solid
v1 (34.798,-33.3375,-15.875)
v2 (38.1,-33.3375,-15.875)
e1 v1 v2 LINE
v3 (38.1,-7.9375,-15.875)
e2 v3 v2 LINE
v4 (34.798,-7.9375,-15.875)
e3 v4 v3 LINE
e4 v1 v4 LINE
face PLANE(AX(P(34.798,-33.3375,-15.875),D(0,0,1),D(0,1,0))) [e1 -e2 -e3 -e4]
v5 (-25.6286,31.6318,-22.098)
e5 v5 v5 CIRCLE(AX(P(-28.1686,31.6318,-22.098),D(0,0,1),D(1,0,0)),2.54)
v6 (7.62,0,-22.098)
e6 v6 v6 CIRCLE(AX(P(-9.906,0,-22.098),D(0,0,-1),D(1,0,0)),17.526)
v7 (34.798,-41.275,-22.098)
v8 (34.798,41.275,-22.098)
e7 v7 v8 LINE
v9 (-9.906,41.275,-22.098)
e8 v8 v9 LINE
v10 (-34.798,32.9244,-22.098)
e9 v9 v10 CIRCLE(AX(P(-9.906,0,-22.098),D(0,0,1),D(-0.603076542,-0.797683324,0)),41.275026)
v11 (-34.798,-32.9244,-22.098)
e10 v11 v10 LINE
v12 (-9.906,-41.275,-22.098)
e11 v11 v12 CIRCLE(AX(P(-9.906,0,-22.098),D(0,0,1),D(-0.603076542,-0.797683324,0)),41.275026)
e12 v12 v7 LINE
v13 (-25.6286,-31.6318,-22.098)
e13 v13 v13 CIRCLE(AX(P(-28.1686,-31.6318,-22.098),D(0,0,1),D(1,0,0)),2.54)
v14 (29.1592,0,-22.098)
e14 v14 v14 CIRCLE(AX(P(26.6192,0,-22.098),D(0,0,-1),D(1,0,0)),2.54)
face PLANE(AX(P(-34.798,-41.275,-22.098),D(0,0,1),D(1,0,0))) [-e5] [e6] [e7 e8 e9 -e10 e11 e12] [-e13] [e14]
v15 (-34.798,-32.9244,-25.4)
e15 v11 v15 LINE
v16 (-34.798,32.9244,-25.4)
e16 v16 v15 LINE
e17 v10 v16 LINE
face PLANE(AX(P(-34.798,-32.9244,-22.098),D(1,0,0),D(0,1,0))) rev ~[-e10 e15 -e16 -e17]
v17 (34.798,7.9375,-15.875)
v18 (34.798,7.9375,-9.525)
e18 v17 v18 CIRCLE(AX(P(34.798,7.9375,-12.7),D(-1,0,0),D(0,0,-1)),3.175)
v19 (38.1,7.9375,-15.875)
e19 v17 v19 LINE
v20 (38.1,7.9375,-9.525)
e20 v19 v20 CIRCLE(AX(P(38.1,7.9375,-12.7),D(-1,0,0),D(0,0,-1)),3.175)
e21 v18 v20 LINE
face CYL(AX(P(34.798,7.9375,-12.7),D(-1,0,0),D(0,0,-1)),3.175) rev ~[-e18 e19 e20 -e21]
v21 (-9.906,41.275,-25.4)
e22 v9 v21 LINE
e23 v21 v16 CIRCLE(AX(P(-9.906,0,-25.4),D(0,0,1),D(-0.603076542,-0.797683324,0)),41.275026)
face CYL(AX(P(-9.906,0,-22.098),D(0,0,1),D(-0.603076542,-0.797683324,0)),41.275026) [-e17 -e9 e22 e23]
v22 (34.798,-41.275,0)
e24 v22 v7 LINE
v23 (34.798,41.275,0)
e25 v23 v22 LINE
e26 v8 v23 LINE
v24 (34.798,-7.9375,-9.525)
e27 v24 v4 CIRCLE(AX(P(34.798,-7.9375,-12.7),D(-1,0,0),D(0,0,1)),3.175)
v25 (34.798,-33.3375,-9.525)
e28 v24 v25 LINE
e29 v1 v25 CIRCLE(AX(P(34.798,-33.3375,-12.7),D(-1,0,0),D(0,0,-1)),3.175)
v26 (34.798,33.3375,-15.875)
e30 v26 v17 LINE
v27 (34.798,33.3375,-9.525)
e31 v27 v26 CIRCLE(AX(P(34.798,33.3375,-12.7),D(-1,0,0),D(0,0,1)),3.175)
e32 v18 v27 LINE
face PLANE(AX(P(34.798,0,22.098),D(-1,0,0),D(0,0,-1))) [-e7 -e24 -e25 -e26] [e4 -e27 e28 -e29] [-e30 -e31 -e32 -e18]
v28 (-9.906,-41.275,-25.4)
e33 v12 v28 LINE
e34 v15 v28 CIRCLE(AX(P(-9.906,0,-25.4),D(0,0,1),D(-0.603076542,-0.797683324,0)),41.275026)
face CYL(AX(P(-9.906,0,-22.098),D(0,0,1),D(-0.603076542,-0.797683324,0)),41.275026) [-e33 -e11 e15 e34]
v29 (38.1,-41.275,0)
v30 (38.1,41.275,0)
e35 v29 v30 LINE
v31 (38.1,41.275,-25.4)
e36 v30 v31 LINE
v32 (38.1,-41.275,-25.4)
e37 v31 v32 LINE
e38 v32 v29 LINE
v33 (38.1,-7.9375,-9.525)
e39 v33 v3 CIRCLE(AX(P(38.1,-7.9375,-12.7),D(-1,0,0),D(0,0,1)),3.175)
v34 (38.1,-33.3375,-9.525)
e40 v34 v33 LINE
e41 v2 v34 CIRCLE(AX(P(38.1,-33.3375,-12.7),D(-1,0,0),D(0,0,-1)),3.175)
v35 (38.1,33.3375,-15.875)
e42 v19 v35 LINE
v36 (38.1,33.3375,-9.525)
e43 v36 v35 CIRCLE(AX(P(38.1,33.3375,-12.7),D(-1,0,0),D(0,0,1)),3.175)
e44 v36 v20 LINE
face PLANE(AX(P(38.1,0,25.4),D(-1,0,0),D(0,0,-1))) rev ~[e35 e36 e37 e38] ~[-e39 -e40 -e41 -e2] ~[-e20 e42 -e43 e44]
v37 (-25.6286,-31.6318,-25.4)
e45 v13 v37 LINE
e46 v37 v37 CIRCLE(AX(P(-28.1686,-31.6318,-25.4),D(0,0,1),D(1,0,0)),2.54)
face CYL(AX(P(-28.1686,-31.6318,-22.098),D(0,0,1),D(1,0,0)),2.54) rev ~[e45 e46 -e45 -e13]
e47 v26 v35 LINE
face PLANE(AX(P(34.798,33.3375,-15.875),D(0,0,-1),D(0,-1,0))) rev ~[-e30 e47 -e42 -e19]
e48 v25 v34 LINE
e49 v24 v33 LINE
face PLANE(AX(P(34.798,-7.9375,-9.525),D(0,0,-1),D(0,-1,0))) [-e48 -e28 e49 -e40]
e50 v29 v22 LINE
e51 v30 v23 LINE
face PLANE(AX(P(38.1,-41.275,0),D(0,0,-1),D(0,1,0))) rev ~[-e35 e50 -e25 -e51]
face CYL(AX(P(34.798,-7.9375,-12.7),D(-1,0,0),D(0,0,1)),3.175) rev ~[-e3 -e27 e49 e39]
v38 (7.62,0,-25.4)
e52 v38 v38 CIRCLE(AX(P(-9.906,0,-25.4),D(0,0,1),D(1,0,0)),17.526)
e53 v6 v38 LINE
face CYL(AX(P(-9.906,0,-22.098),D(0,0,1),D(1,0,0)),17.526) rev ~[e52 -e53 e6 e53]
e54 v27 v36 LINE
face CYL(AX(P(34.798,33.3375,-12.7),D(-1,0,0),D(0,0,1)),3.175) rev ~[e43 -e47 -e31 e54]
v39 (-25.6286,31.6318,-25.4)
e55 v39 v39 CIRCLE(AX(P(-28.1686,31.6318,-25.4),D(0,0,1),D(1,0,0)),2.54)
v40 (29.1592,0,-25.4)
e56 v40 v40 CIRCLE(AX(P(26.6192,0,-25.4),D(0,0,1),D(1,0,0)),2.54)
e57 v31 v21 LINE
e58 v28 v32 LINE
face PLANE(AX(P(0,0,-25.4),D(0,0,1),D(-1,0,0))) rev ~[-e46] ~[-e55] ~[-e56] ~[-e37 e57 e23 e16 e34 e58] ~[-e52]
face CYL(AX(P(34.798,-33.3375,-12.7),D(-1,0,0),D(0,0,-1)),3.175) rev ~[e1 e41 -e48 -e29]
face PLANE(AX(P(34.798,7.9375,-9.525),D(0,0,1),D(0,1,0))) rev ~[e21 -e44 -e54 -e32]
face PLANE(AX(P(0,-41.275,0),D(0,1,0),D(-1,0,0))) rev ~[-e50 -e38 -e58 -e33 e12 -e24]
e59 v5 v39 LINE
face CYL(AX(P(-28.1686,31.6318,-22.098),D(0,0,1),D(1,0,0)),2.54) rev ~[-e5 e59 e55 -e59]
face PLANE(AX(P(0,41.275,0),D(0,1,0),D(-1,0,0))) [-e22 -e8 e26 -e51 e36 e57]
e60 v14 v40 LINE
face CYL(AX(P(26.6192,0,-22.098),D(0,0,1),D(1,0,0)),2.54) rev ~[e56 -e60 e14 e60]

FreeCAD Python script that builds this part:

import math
import FreeCAD as App
import Part
import Sketcher

V = App.Vector
Q = App.Units.Quantity

doc = App.newDocument("Part")
body = doc.addObject("PartDesign::Body", "Body")

# Sketch on XZ plane
sketch1 = body.newObject("Sketcher::SketchObject", "Sketch")
sketch1.AttachmentSupport = (doc.getObject("XZ_Plane"), [""])
sketch1.MapMode = "FlatFace"
sketch1.addGeometry([
    Part.LineSegment(V(-38.1, 25.4, 0), V(38.1, 25.4, 0)),  # 0
    Part.LineSegment(V(38.1, 25.4, 0), V(38.1, -25.4, 0)),  # 1
    Part.LineSegment(V(38.1, -25.4, 0), V(-38.1, -25.4, 0)),  # 2
    Part.LineSegment(V(-38.1, -25.4, 0), V(-38.1, 25.4, 0)),  # 3
    Part.LineSegment(V(-34.798, 22.098, 0), V(-34.798, -22.098, 0)),  # 4
    Part.LineSegment(V(-34.798, -22.098, 0), V(34.798, -22.098, 0)),  # 5
    Part.LineSegment(V(34.798, -22.098, 0), V(34.798, 22.098, 0)),  # 6
    Part.LineSegment(V(34.798, 22.098, 0), V(-34.798, 22.098, 0)),  # 7
], False)
sketch1.addConstraint([
    Sketcher.Constraint("Coincident", 0, 2, 1, 1),
    Sketcher.Constraint("Coincident", 1, 2, 2, 1),
    Sketcher.Constraint("Coincident", 2, 2, 3, 1),
    Sketcher.Constraint("Coincident", 3, 2, 0, 1),
    Sketcher.Constraint("Coincident", 4, 2, 5, 1),
    Sketcher.Constraint("Coincident", 5, 2, 6, 1),
    Sketcher.Constraint("Coincident", 6, 2, 7, 1),
    Sketcher.Constraint("Coincident", 7, 2, 4, 1),
    Sketcher.Constraint("Horizontal", 0),
    Sketcher.Constraint("Vertical", 1),
    Sketcher.Constraint("Horizontal", 2),
    Sketcher.Constraint("Vertical", 3),
    Sketcher.Constraint("Vertical", 4),
    Sketcher.Constraint("Horizontal", 5),
    Sketcher.Constraint("Vertical", 6),
    Sketcher.Constraint("Horizontal", 7),
    Sketcher.Constraint("Symmetric", 0, 2, 2, 2, -1, 1),
    Sketcher.Constraint("Symmetric", 4, 2, 6, 2, -1, 1),
    Sketcher.Constraint("DistanceX", 0, 1, 0, 2, Q("3 in")),
    Sketcher.Constraint("DistanceY", 1, 2, 1, 1, Q("2 in")),
    Sketcher.Constraint("DistanceX", 2, 2, 4, 2, Q("0.13 in")),
    Sketcher.Constraint("DistanceY", 2, 2, 4, 2, Q("0.13 in")),
])
pad1 = body.newObject("PartDesign::Pad", "Pad")
pad1.Profile = sketch1
pad1.Length = Q("3.25 in")
pad1.Midplane = True

# Sketch on XY plane
sketch2 = body.newObject("Sketcher::SketchObject", "Sketch001")
sketch2.AttachmentSupport = (doc.getObject("XY_Plane"), [""])
sketch2.MapMode = "FlatFace"
sketch2.AttachmentOffset = App.Placement(V(0, 0, -0.87 * 25.4), App.Rotation())
sketch2.addGeometry([
    Part.LineSegment(V(-38.1, -41.275, 0), V(-9.906, -41.275, 0)),  # 0
    Part.ArcOfCircle(Part.Circle(V(-9.906, 0, 0), V(0, 0, 1), 41.275026), math.radians(-127.090558), math.radians(-90)),  # 1
    Part.LineSegment(V(-34.798, -32.9244, 0), V(-34.798, 32.9244, 0)),  # 2
    Part.ArcOfCircle(Part.Circle(V(-9.906, 0, 0), V(0, 0, 1), 41.275026), math.radians(90), math.radians(127.090558)),  # 3
    Part.LineSegment(V(-9.906, 41.275, 0), V(-38.1, 41.275, 0)),  # 4
    Part.LineSegment(V(-38.1, 41.275, 0), V(-38.1, -41.275, 0)),  # 5
    Part.Circle(V(-9.906, 0, 0), V(0, 0, 1), 17.526),  # 6
    Part.Circle(V(26.6192, 0, 0), V(0, 0, 1), 2.54),  # 7
    Part.Circle(V(-28.1686, 31.6318, 0), V(0, 0, 1), 2.54),  # 8
    Part.Circle(V(-28.1686, -31.6318, 0), V(0, 0, 1), 2.54),  # 9
], False)
sketch2.addConstraint([
    Sketcher.Constraint("Tangent", 0, 2, 1, 2),
    Sketcher.Constraint("Coincident", 1, 1, 2, 1),
    Sketcher.Constraint("Coincident", 2, 2, 3, 2),
    Sketcher.Constraint("Tangent", 3, 1, 4, 1),
    Sketcher.Constraint("Coincident", 4, 2, 5, 1),
    Sketcher.Constraint("Coincident", 5, 2, 0, 1),
    Sketcher.Constraint("Horizontal", 0),
    Sketcher.Constraint("Vertical", 2),
    Sketcher.Constraint("Horizontal", 4),
    Sketcher.Constraint("Vertical", 5),
    Sketcher.Constraint("Coincident", 3, 3, 1, 3),
    Sketcher.Constraint("Coincident", 6, 3, 1, 3),
    Sketcher.Constraint("Equal", 1, 3),
    Sketcher.Constraint("Equal", 7, 8),
    Sketcher.Constraint("Equal", 8, 9),
    Sketcher.Constraint("Symmetric", 8, 3, 9, 3, -1),
    Sketcher.Constraint("PointOnObject", 1, 3, -1),
    Sketcher.Constraint("PointOnObject", 7, 3, -1),
    Sketcher.Constraint("Diameter", 7, Q("0.2 in")),
    Sketcher.Constraint("Diameter", 6, Q("1.38 in")),
    Sketcher.Constraint("Radius", 1, Q("1.625 in")),
    Sketcher.Constraint("DistanceX", 1, 3, 7, 3, Q("1.438 in")),
    Sketcher.Constraint("DistanceX", 0, 1, 0, 2, Q("1.11 in")),
    Sketcher.Constraint("DistanceX", 4, 2, -1, 1, Q("1.5 in")),
    Sketcher.Constraint("DistanceX", 1, 1, -1, 1, Q("1.37 in")),
    Sketcher.Constraint("DistanceX", 8, 3, -1, 1, Q("1.109 in")),
    Sketcher.Constraint("DistanceY", 9, 3, 8, 3, Q("2.4907 in")),
])
pocket1 = body.newObject("PartDesign::Pocket", "Pocket")
pocket1.Profile = sketch2
pocket1.Length = Q("1.87 in")
pocket1.Reversed = True

# Sketch on XY plane
sketch3 = body.newObject("Sketcher::SketchObject", "Sketch002")
sketch3.AttachmentSupport = (doc.getObject("XY_Plane"), [""])
sketch3.MapMode = "FlatFace"
sketch3.AttachmentOffset = App.Placement(V(0, 0, -0.87 * 25.4), App.Rotation())
sketch3.addGeometry([
    Part.LineSegment(V(-38.1, -41.275, 0), V(-9.906, -41.275, 0)),  # 0
    Part.ArcOfCircle(Part.Circle(V(-9.906, 0, 0), V(0, 0, 1), 41.275026), math.radians(-127.090558), math.radians(-90)),  # 1
    Part.LineSegment(V(-34.798, -32.9244, 0), V(-34.798, 32.9244, 0)),  # 2
    Part.ArcOfCircle(Part.Circle(V(-9.906, 0, 0), V(0, 0, 1), 41.275026), math.radians(90), math.radians(127.090558)),  # 3
    Part.LineSegment(V(-9.906, 41.275, 0), V(-38.1, 41.275, 0)),  # 4
    Part.LineSegment(V(-38.1, 41.275, 0), V(-38.1, -41.275, 0)),  # 5
    Part.Circle(V(-9.906, 0, 0), V(0, 0, 1), 17.526),  # 6
    Part.Circle(V(26.6192, 0, 0), V(0, 0, 1), 2.54),  # 7
    Part.Circle(V(-28.1686, 31.6318, 0), V(0, 0, 1), 2.54),  # 8
    Part.Circle(V(-28.1686, -31.6318, 0), V(0, 0, 1), 2.54),  # 9
], False)
sketch3.addConstraint([
    Sketcher.Constraint("Tangent", 0, 2, 1, 2),
    Sketcher.Constraint("Coincident", 1, 1, 2, 1),
    Sketcher.Constraint("Coincident", 2, 2, 3, 2),
    Sketcher.Constraint("Tangent", 3, 1, 4, 1),
    Sketcher.Constraint("Coincident", 4, 2, 5, 1),
    Sketcher.Constraint("Coincident", 5, 2, 0, 1),
    Sketcher.Constraint("Horizontal", 0),
    Sketcher.Constraint("Vertical", 2),
    Sketcher.Constraint("Horizontal", 4),
    Sketcher.Constraint("Vertical", 5),
    Sketcher.Constraint("Coincident", 3, 3, 1, 3),
    Sketcher.Constraint("Coincident", 6, 3, 1, 3),
    Sketcher.Constraint("Equal", 1, 3),
    Sketcher.Constraint("Equal", 7, 8),
    Sketcher.Constraint("Equal", 8, 9),
    Sketcher.Constraint("Symmetric", 8, 3, 9, 3, -1),
    Sketcher.Constraint("PointOnObject", 1, 3, -1),
    Sketcher.Constraint("PointOnObject", 7, 3, -1),
    Sketcher.Constraint("Diameter", 7, Q("0.2 in")),
    Sketcher.Constraint("Diameter", 6, Q("1.38 in")),
    Sketcher.Constraint("Radius", 1, Q("1.625 in")),
    Sketcher.Constraint("DistanceX", 1, 3, 7, 3, Q("1.438 in")),
    Sketcher.Constraint("DistanceX", 0, 1, 0, 2, Q("1.11 in")),
    Sketcher.Constraint("DistanceX", 4, 2, -1, 1, Q("1.5 in")),
    Sketcher.Constraint("DistanceX", 1, 1, -1, 1, Q("1.37 in")),
    Sketcher.Constraint("DistanceX", 8, 3, -1, 1, Q("1.109 in")),
    Sketcher.Constraint("DistanceY", 9, 3, 8, 3, Q("2.4907 in")),
])
pocket2 = body.newObject("PartDesign::Pocket", "Pocket001")
pocket2.Profile = sketch3
pocket2.Length = Q("0.13 in")

# Sketch on YZ plane
sketch4 = body.newObject("Sketcher::SketchObject", "Sketch003")
sketch4.AttachmentSupport = (doc.getObject("YZ_Plane"), [""])
sketch4.MapMode = "FlatFace"
sketch4.AttachmentOffset = App.Placement(V(0, 0, 1.5 * 25.4), App.Rotation())
sketch4.addGeometry([
    Part.LineSegment(V(-41.275, 25.4, 0), V(-41.275, 0, 0)),
    Part.LineSegment(V(-41.275, 0, 0), V(41.275, 0, 0)),
    Part.LineSegment(V(41.275, 0, 0), V(41.275, 25.4, 0)),
    Part.LineSegment(V(41.275, 25.4, 0), V(-41.275, 25.4, 0)),
], False)
sketch4.addConstraint([
    Sketcher.Constraint("Coincident", 0, 2, 1, 1),
    Sketcher.Constraint("Coincident", 1, 2, 2, 1),
    Sketcher.Constraint("Coincident", 2, 2, 3, 1),
    Sketcher.Constraint("Coincident", 3, 2, 0, 1),
    Sketcher.Constraint("Vertical", 0),
    Sketcher.Constraint("Horizontal", 1),
    Sketcher.Constraint("Vertical", 2),
    Sketcher.Constraint("Horizontal", 3),
    Sketcher.Constraint("Symmetric", 0, 2, 1, 2, -1, 1),
    Sketcher.Constraint("DistanceY", 0, 2, 0, 1, Q("1 in")),
    Sketcher.Constraint("DistanceX", 1, 1, 1, 2, Q("3.25 in")),
])
pocket3 = body.newObject("PartDesign::Pocket", "Pocket002")
pocket3.Profile = sketch4
pocket3.Length = Q("2.87 in")

# Sketch on YZ plane
sketch5 = body.newObject("Sketcher::SketchObject", "Sketch004")
sketch5.AttachmentSupport = (doc.getObject("YZ_Plane"), [""])
sketch5.MapMode = "FlatFace"
sketch5.AttachmentOffset = App.Placement(V(0, 0, 1.37 * 25.4), App.Rotation())
sketch5.addGeometry([
    Part.LineSegment(V(7.9375, -9.525, 0), V(33.3375, -9.525, 0)),  # 0
    Part.ArcOfCircle(Part.Circle(V(33.3375, -12.7, 0), V(0, 0, 1), 3.175), math.radians(-90), math.radians(90)),  # 1
    Part.LineSegment(V(33.3375, -15.875, 0), V(7.9375, -15.875, 0)),  # 2
    Part.ArcOfCircle(Part.Circle(V(7.9375, -12.7, 0), V(0, 0, 1), 3.175), math.radians(90), math.radians(270)),  # 3
    Part.LineSegment(V(-7.9375, -15.875, 0), V(-33.3375, -15.875, 0)),  # 4
    Part.ArcOfCircle(Part.Circle(V(-33.3375, -12.7, 0), V(0, 0, 1), 3.175), math.radians(90), math.radians(270)),  # 5
    Part.LineSegment(V(-33.3375, -9.525, 0), V(-7.9375, -9.525, 0)),  # 6
    Part.ArcOfCircle(Part.Circle(V(-7.9375, -12.7, 0), V(0, 0, 1), 3.175), math.radians(-90), math.radians(90)),  # 7
], False)
sketch5.addConstraint([
    Sketcher.Constraint("Tangent", 0, 2, 1, 2),
    Sketcher.Constraint("Tangent", 1, 1, 2, 1),
    Sketcher.Constraint("Tangent", 2, 2, 3, 2),
    Sketcher.Constraint("Tangent", 3, 1, 0, 1),
    Sketcher.Constraint("Tangent", 4, 2, 5, 2),
    Sketcher.Constraint("Tangent", 5, 1, 6, 1),
    Sketcher.Constraint("Tangent", 6, 2, 7, 2),
    Sketcher.Constraint("Tangent", 7, 1, 4, 1),
    Sketcher.Constraint("Horizontal", 0),
    Sketcher.Constraint("Horizontal", 2),
    Sketcher.Constraint("Horizontal", 4),
    Sketcher.Constraint("Horizontal", 6),
    Sketcher.Constraint("Equal", 3, 5),
    Sketcher.Constraint("Symmetric", 1, 3, 5, 3, -2),
    Sketcher.Constraint("Equal", 2, 4),
    Sketcher.Constraint("DistanceX", 0, 1, 0, 2, Q("1 in")),
    Sketcher.Constraint("Radius", 1, Q("0.125 in")),
    Sketcher.Constraint("DistanceY", 1, 3, -1, 1, Q("0.5 in")),
    Sketcher.Constraint("DistanceX", -1, 1, 1, 3, Q("1.3125 in")),
])
pocket4 = body.newObject("PartDesign::Pocket", "Pocket003")
pocket4.Profile = sketch5
pocket4.Type = "UpToFirst"
pocket4.Reversed = True

doc.recompute()
